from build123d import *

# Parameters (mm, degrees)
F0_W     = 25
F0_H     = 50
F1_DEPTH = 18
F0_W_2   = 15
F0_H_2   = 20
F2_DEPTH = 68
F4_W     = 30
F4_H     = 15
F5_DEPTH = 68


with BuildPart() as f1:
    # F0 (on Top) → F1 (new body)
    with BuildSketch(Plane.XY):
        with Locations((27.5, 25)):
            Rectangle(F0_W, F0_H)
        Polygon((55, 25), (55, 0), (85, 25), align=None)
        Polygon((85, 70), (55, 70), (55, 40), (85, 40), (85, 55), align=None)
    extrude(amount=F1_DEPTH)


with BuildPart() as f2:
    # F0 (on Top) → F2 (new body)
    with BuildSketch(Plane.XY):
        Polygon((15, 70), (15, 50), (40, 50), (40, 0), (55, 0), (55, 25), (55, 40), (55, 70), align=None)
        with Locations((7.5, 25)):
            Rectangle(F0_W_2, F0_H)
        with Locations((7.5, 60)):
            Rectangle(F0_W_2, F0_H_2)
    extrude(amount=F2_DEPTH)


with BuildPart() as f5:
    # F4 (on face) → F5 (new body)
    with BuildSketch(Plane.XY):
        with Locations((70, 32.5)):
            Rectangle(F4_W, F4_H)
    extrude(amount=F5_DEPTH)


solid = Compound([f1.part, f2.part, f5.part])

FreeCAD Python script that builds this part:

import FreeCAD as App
import Part
import Sketcher
Q = App.Units.Quantity


def add_polygon(sketch, points):
    """Adds a closed chain of lines whose ends are joined by coincident constraints."""
    first, n = sketch.GeometryCount, len(points)
    for a, b in zip(points, points[1:] + points[:1]):
        sketch.addGeometry(Part.LineSegment(App.Vector(*a, 0), App.Vector(*b, 0)), False)
    for i in range(n):
        sketch.addConstraint(Sketcher.Constraint("Coincident", first + i, 2, first + (i + 1) % n, 1))

doc = App.newDocument("Part")
body = doc.addObject("PartDesign::Body", "Body")
body.AllowCompound = True

# Sketch on XY plane
sketch1 = body.newObject("Sketcher::SketchObject", "Sketch")
sketch1.AttachmentSupport = (doc.getObject("XY_Plane"), [""])
sketch1.MapMode = "FlatFace"
add_polygon(sketch1, [(15, 50), (15, 0), (40, 0), (40, 50)])  # lines 0-3
add_polygon(sketch1, [(55, 25), (55, 0), (85, 25)])  # lines 4-6
add_polygon(sketch1, [(85, 70), (55, 70), (55, 40), (85, 40)])  # lines 7-10
sketch1.addConstraint([
    Sketcher.Constraint("Vertical", 0),
    Sketcher.Constraint("Horizontal", 1),
    Sketcher.Constraint("Vertical", 2),
    Sketcher.Constraint("Horizontal", 3),
    Sketcher.Constraint("Vertical", 4),
    Sketcher.Constraint("Horizontal", 6),
    Sketcher.Constraint("Horizontal", 7),
    Sketcher.Constraint("Vertical", 8),
    Sketcher.Constraint("Horizontal", 9),
    Sketcher.Constraint("Vertical", 10),
    Sketcher.Constraint("PointOnObject", 0, 2, -1),
    Sketcher.Constraint("PointOnObject", 4, 2, -1),
    Sketcher.Constraint("Vertical", 6, 2, 7, 2),
    Sketcher.Constraint("Vertical", 5, 2, 9, 2),
    Sketcher.Constraint("Equal", 3, 4),
    Sketcher.Constraint("Equal", 9, 8),
    Sketcher.Constraint("DistanceX", 1, 1, 1, 2, Q("25 mm")),
    Sketcher.Constraint("DistanceX", 6, 2, 6, 1, Q("30 mm")),
    Sketcher.Constraint("DistanceY", 0, 2, 0, 1, Q("50 mm")),
    Sketcher.Constraint("DistanceX", -1, 1, 0, 2, Q("15 mm")),
    Sketcher.Constraint("DistanceX", -1, 1, 4, 2, Q("55 mm")),
    Sketcher.Constraint("DistanceY", -1, 1, 7, 2, Q("70 mm")),
])
pad1 = body.newObject("PartDesign::Pad", "Pad")
pad1.Profile = sketch1
pad1.Length = 18
body2 = doc.addObject("PartDesign::Body", "Body001")

# Sketch on XY plane
sketch2 = body2.newObject("Sketcher::SketchObject", "Sketch001")
sketch2.AttachmentSupport = (doc.getObject("XY_Plane001"), [""])
sketch2.MapMode = "FlatFace"
add_polygon(sketch2, [(15, 50), (40, 50), (40, 0), (55, 0), (55, 70), (0, 70), (0, 0), (15, 0)])  # lines 0-7
sketch2.addConstraint([
    Sketcher.Constraint("Horizontal", 0),
    Sketcher.Constraint("Vertical", 1),
    Sketcher.Constraint("Horizontal", 2),
    Sketcher.Constraint("Vertical", 3),
    Sketcher.Constraint("Horizontal", 4),
    Sketcher.Constraint("Vertical", 5),
    Sketcher.Constraint("Horizontal", 6),
    Sketcher.Constraint("Vertical", 7),
    Sketcher.Constraint("Coincident", 5, 2, -1, 1),
    Sketcher.Constraint("PointOnObject", 1, 2, -1),
    Sketcher.Constraint("Equal", 2, 6),
    Sketcher.Constraint("DistanceX", 0, 1, 0, 2, Q("25 mm")),
    Sketcher.Constraint("DistanceX", 2, 1, 2, 2, Q("15 mm")),
    Sketcher.Constraint("DistanceY", 1, 2, 1, 1, Q("50 mm")),
    Sketcher.Constraint("DistanceY", 3, 1, 3, 2, Q("70 mm")),
])
pad2 = body2.newObject("PartDesign::Pad", "Pad001")
pad2.Profile = sketch2
pad2.Length = 68
body3 = doc.addObject("PartDesign::Body", "Body002")

# Sketch on XY plane
sketch3 = body3.newObject("Sketcher::SketchObject", "Sketch002")
sketch3.AttachmentSupport = (doc.getObject("XY_Plane002"), [""])
sketch3.MapMode = "FlatFace"
add_polygon(sketch3, [(55, 40), (55, 25), (85, 25), (85, 40)])  # lines 0-3
sketch3.addConstraint([
    Sketcher.Constraint("Vertical", 0),
    Sketcher.Constraint("Horizontal", 1),
    Sketcher.Constraint("Vertical", 2),
    Sketcher.Constraint("Horizontal", 3),
    Sketcher.Constraint("DistanceX", 1, 1, 1, 2, Q("30 mm")),
    Sketcher.Constraint("DistanceY", 0, 2, 0, 1, Q("15 mm")),
    Sketcher.Constraint("DistanceX", -1, 1, 0, 2, Q("55 mm")),
    Sketcher.Constraint("DistanceY", -1, 1, 0, 2, Q("25 mm")),
])
pad3 = body3.newObject("PartDesign::Pad", "Pad002")
pad3.Profile = sketch3
pad3.Length = 68

doc.recompute()
